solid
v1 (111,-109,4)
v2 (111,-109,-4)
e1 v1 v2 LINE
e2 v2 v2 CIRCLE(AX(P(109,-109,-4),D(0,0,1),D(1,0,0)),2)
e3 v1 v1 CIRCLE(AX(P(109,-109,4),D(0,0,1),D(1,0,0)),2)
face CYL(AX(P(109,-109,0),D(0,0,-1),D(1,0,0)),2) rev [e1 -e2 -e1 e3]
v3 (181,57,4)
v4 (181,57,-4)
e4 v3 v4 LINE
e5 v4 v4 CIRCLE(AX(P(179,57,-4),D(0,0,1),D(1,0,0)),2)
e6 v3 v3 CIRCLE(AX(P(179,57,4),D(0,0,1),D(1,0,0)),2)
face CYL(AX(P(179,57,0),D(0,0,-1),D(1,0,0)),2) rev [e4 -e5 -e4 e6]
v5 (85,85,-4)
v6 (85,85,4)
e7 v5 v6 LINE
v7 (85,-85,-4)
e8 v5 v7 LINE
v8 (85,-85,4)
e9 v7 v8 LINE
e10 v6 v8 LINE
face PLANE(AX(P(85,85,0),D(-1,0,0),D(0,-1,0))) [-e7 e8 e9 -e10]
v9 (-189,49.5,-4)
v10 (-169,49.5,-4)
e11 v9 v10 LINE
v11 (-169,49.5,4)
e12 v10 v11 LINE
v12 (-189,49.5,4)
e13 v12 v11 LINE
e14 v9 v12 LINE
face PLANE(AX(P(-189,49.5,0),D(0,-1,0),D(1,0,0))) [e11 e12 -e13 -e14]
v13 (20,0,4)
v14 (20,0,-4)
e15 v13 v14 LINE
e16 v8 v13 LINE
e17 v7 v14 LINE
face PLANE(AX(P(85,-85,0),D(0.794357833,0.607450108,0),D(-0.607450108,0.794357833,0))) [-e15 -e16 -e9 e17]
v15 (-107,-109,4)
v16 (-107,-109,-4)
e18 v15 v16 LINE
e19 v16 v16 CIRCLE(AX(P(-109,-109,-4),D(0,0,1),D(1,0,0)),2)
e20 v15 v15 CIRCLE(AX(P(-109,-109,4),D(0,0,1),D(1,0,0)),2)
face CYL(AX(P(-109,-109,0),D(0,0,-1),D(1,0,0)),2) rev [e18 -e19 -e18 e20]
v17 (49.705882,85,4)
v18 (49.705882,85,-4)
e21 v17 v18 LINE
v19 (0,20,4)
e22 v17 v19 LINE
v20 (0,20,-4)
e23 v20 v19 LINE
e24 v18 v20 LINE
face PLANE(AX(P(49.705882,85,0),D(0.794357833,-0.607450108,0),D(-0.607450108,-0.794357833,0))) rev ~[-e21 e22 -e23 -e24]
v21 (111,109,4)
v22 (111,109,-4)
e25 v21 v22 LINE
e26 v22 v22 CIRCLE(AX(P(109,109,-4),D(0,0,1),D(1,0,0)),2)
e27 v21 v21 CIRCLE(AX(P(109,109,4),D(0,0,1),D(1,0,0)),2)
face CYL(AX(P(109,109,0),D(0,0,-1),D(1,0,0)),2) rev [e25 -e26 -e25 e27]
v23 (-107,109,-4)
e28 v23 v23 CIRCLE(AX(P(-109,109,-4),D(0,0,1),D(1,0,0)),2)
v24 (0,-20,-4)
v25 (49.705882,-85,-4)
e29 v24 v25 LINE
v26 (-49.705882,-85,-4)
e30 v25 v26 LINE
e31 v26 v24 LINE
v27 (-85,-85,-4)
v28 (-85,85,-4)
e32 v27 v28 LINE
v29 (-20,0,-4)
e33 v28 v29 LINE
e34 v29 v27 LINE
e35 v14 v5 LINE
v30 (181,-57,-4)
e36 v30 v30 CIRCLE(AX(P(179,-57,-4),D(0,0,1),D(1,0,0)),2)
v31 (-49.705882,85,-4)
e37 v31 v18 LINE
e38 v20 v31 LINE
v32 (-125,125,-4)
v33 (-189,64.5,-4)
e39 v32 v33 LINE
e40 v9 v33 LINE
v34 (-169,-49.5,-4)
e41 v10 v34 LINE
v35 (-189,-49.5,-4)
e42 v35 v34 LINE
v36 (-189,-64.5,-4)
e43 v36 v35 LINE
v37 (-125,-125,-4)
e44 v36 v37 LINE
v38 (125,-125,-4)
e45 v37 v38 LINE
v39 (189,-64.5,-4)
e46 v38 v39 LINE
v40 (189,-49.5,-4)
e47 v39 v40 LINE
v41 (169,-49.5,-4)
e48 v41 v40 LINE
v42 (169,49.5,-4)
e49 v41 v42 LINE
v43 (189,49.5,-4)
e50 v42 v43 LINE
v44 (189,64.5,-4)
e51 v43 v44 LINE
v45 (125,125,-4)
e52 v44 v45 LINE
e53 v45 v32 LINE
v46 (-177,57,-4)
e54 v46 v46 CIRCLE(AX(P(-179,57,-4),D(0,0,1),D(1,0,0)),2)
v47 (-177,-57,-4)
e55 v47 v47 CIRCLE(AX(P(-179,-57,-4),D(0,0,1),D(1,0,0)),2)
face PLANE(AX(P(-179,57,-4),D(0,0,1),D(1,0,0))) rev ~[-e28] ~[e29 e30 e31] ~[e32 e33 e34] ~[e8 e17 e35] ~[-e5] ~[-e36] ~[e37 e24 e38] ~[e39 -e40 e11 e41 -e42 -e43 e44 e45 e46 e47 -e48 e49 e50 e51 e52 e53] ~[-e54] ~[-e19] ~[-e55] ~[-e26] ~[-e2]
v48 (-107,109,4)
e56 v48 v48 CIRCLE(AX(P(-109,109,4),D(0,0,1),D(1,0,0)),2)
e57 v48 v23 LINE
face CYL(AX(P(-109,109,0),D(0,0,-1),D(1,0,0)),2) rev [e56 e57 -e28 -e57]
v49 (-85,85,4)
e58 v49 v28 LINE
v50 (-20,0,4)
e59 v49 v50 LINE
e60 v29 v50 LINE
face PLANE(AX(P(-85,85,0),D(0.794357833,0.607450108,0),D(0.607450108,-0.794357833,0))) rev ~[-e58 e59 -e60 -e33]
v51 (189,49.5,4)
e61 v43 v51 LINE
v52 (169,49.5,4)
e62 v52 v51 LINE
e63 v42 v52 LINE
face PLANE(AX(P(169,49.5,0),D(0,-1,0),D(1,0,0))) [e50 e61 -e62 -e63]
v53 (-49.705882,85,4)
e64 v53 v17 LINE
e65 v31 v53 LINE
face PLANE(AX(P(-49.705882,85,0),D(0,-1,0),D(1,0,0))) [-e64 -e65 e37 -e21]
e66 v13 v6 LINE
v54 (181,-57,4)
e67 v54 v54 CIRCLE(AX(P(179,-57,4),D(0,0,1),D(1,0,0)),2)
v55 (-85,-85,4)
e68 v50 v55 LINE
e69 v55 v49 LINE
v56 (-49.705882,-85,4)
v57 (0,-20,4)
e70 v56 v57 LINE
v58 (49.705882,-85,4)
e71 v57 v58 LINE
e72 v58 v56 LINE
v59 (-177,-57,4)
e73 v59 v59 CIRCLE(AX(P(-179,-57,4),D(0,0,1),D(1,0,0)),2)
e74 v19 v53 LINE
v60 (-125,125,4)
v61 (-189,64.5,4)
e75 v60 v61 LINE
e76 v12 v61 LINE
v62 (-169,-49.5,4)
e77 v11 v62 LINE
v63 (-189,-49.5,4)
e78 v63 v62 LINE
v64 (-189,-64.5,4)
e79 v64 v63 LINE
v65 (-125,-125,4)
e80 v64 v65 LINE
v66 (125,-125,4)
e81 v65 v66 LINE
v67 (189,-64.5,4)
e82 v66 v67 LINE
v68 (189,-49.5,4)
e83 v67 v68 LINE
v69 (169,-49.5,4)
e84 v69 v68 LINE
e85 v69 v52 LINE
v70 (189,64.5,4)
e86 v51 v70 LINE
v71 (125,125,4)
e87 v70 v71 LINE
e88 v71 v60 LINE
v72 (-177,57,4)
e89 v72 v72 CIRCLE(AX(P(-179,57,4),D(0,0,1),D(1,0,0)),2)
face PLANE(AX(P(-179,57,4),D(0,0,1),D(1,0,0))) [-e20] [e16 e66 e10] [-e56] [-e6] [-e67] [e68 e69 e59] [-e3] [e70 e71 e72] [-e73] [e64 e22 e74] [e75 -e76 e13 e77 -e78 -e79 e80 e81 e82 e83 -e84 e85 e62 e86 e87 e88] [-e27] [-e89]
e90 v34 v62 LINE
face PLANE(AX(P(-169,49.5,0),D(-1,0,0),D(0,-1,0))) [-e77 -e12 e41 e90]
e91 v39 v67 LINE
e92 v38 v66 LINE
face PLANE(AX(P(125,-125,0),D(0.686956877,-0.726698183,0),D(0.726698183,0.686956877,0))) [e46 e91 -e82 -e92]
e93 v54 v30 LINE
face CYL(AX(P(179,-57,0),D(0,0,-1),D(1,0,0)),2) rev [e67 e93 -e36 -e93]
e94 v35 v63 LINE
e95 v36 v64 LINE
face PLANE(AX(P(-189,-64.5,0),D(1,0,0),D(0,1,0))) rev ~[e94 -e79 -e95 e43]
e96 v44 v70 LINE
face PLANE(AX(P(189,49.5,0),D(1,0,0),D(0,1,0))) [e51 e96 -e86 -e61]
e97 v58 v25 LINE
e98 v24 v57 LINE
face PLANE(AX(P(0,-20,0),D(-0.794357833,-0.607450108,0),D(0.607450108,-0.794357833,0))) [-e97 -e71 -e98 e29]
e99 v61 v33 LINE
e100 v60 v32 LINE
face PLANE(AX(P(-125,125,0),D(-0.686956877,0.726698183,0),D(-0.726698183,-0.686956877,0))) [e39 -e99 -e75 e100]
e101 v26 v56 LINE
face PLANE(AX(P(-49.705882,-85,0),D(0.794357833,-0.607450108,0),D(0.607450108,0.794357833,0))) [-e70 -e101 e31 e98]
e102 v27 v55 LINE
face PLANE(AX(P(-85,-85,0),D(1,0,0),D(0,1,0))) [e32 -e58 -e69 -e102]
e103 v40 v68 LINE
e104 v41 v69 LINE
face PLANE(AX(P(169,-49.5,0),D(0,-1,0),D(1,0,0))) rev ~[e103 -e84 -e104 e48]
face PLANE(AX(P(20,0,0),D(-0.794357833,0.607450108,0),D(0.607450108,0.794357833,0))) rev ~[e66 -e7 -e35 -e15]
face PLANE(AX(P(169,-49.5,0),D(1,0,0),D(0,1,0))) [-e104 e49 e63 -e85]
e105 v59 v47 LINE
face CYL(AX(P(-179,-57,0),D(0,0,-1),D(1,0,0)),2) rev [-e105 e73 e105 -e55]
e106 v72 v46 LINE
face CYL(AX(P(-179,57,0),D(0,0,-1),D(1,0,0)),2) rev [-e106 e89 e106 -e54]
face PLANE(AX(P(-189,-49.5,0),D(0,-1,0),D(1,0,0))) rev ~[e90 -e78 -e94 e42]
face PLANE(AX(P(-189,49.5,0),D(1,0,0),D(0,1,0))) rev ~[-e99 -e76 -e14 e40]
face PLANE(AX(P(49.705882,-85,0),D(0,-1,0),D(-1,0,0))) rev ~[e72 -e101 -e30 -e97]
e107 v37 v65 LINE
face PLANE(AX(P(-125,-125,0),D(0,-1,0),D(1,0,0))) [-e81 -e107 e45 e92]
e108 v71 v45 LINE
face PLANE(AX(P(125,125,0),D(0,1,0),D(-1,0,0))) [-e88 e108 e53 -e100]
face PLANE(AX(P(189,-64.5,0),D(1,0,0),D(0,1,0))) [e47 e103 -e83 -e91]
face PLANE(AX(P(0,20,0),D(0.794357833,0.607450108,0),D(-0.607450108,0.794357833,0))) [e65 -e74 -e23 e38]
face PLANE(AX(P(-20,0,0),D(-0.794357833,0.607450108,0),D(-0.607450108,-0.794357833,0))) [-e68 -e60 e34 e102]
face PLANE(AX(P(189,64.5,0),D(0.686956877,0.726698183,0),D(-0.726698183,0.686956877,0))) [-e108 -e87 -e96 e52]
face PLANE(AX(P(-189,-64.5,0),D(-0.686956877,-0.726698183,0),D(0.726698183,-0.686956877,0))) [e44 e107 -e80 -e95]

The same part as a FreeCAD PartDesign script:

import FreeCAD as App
import Part
import Sketcher

V = App.Vector
Q = App.Units.Quantity

doc = App.newDocument("Part")
body = doc.addObject("PartDesign::Body", "Body")

# Sketch on XY plane
sketch1 = body.newObject("Sketcher::SketchObject", "Sketch")
sketch1.AttachmentSupport = (doc.getObject("XY_Plane"), [""])
sketch1.MapMode = "FlatFace"
sketch1.addGeometry([
    Part.LineSegment(V(-189, 64.5, 0), V(-189, 49.5, 0)),  # 0
    Part.LineSegment(V(-189, 49.5, 0), V(-169, 49.5, 0)),  # 1
    Part.LineSegment(V(-169, 49.5, 0), V(-169, -49.5, 0)),  # 2
    Part.LineSegment(V(-169, -49.5, 0), V(-189, -49.5, 0)),  # 3
    Part.LineSegment(V(-189, -49.5, 0), V(-189, -64.5, 0)),  # 4
    Part.LineSegment(V(-189, -64.5, 0), V(-125, -125, 0)),  # 5
    Part.LineSegment(V(-125, -125, 0), V(125, -125, 0)),  # 6
    Part.LineSegment(V(125, -125, 0), V(189, -64.5, 0)),  # 7
    Part.LineSegment(V(189, -64.5, 0), V(189, -49.5, 0)),  # 8
    Part.LineSegment(V(189, -49.5, 0), V(169, -49.5, 0)),  # 9
    Part.LineSegment(V(169, -49.5, 0), V(169, 49.5, 0)),  # 10
    Part.LineSegment(V(169, 49.5, 0), V(189, 49.5, 0)),  # 11
    Part.LineSegment(V(189, 49.5, 0), V(189, 64.5, 0)),  # 12
    Part.LineSegment(V(189, 64.5, 0), V(125, 125, 0)),  # 13
    Part.LineSegment(V(125, 125, 0), V(-125, 125, 0)),  # 14
    Part.LineSegment(V(-125, 125, 0), V(-189, 64.5, 0)),  # 15
    Part.Circle(V(-109, -109, 0), V(0, 0, 1), 2),  # 16
    Part.Circle(V(-179, -57, 0), V(0, 0, 1), 2),  # 17
    Part.Circle(V(109, -109, 0), V(0, 0, 1), 2),  # 18
    Part.Circle(V(179, -57, 0), V(0, 0, 1), 2),  # 19
    Part.LineSegment(V(-49.705882, -85, 0), V(0, -20, 0)),  # 20
    Part.LineSegment(V(0, -20, 0), V(49.705882, -85, 0)),  # 21
    Part.LineSegment(V(49.705882, -85, 0), V(-49.705882, -85, 0)),  # 22
    Part.LineSegment(V(-20, 0, 0), V(-85, -85, 0)),  # 23
    Part.LineSegment(V(-85, -85, 0), V(-85, 85, 0)),  # 24
    Part.LineSegment(V(-85, 85, 0), V(-20, 0, 0)),  # 25
    Part.Circle(V(-179, 57, 0), V(0, 0, 1), 2),  # 26
    Part.Circle(V(-109, 109, 0), V(0, 0, 1), 2),  # 27
    Part.LineSegment(V(85, 85, 0), V(85, -85, 0)),  # 28
    Part.LineSegment(V(85, -85, 0), V(20, 0, 0)),  # 29
    Part.LineSegment(V(20, 0, 0), V(85, 85, 0)),  # 30
    Part.LineSegment(V(0, 20, 0), V(-49.705882, 85, 0)),  # 31
    Part.LineSegment(V(-49.705882, 85, 0), V(49.705882, 85, 0)),  # 32
    Part.LineSegment(V(49.705882, 85, 0), V(0, 20, 0)),  # 33
    Part.Circle(V(179, 57, 0), V(0, 0, 1), 2),  # 34
    Part.Circle(V(109, 109, 0), V(0, 0, 1), 2),  # 35
], False)
sketch1.addConstraint([
    Sketcher.Constraint("Coincident", 0, 2, 1, 1),
    Sketcher.Constraint("Coincident", 1, 2, 2, 1),
    Sketcher.Constraint("Coincident", 2, 2, 3, 1),
    Sketcher.Constraint("Coincident", 3, 2, 4, 1),
    Sketcher.Constraint("Coincident", 4, 2, 5, 1),
    Sketcher.Constraint("Coincident", 5, 2, 6, 1),
    Sketcher.Constraint("Coincident", 6, 2, 7, 1),
    Sketcher.Constraint("Coincident", 7, 2, 8, 1),
    Sketcher.Constraint("Coincident", 8, 2, 9, 1),
    Sketcher.Constraint("Coincident", 9, 2, 10, 1),
    Sketcher.Constraint("Coincident", 10, 2, 11, 1),
    Sketcher.Constraint("Coincident", 11, 2, 12, 1),
    Sketcher.Constraint("Coincident", 12, 2, 13, 1),
    Sketcher.Constraint("Coincident", 13, 2, 14, 1),
    Sketcher.Constraint("Coincident", 14, 2, 15, 1),
    Sketcher.Constraint("Coincident", 15, 2, 0, 1),
    Sketcher.Constraint("Coincident", 20, 2, 21, 1),
    Sketcher.Constraint("Coincident", 21, 2, 22, 1),
    Sketcher.Constraint("Coincident", 22, 2, 20, 1),
    Sketcher.Constraint("Coincident", 23, 2, 24, 1),
    Sketcher.Constraint("Coincident", 24, 2, 25, 1),
    Sketcher.Constraint("Coincident", 25, 2, 23, 1),
    Sketcher.Constraint("Coincident", 28, 2, 29, 1),
    Sketcher.Constraint("Coincident", 29, 2, 30, 1),
    Sketcher.Constraint("Coincident", 30, 2, 28, 1),
    Sketcher.Constraint("Coincident", 31, 2, 32, 1),
    Sketcher.Constraint("Coincident", 32, 2, 33, 1),
    Sketcher.Constraint("Coincident", 33, 2, 31, 1),
    Sketcher.Constraint("Vertical", 0),
    Sketcher.Constraint("Horizontal", 1),
    Sketcher.Constraint("Vertical", 2),
    Sketcher.Constraint("Horizontal", 3),
    Sketcher.Constraint("Vertical", 4),
    Sketcher.Constraint("Horizontal", 6),
    Sketcher.Constraint("Vertical", 8),
    Sketcher.Constraint("Horizontal", 9),
    Sketcher.Constraint("Vertical", 10),
    Sketcher.Constraint("Horizontal", 11),
    Sketcher.Constraint("Vertical", 12),
    Sketcher.Constraint("Horizontal", 14),
    Sketcher.Constraint("Horizontal", 22),
    Sketcher.Constraint("Vertical", 24),
    Sketcher.Constraint("Vertical", 28),
    Sketcher.Constraint("Horizontal", 32),
    Sketcher.Constraint("Equal", 16, 17),
    Sketcher.Constraint("Equal", 17, 18),
    Sketcher.Constraint("Equal", 18, 19),
    Sketcher.Constraint("Equal", 19, 26),
    Sketcher.Constraint("Equal", 26, 27),
    Sketcher.Constraint("Equal", 27, 34),
    Sketcher.Constraint("Equal", 34, 35),
    Sketcher.Constraint("Symmetric", 19, 3, 26, 3, -1, 1),
    Sketcher.Constraint("Symmetric", 18, 3, 27, 3, -1, 1),
    Sketcher.Constraint("Symmetric", 17, 3, 34, 3, -1, 1),
    Sketcher.Constraint("Symmetric", 16, 3, 35, 3, -1, 1),
    Sketcher.Constraint("Symmetric", 0, 2, 8, 2, -1, 1),
    Sketcher.Constraint("Symmetric", 2, 2, 10, 2, -1, 1),
    Sketcher.Constraint("Symmetric", 4, 2, 12, 2, -1, 1),
    Sketcher.Constraint("Symmetric", 5, 2, 13, 2, -1, 1),
    Sketcher.Constraint("Symmetric", 24, 2, 28, 2, -1, 1),
    Sketcher.Constraint("Symmetric", 25, 2, 29, 2, -1, 1),
    Sketcher.Constraint("Symmetric", 21, 2, 31, 2, -1, 1),
    Sketcher.Constraint("Symmetric", 20, 2, 33, 2, -1, 1),
    Sketcher.Constraint("Symmetric", 16, 3, 18, 3, -2),
    Sketcher.Constraint("Symmetric", 17, 3, 19, 3, -2),
    Sketcher.Constraint("Symmetric", 4, 2, 7, 2, -2),
    Sketcher.Constraint("PointOnObject", 20, 2, -2),
    Sketcher.Constraint("PointOnObject", 25, 2, -1),
    Sketcher.Constraint("Parallel", 7, 15),
    Sketcher.Constraint("Parallel", 20, 23),
    Sketcher.Constraint("Parallel", 21, 25),
    Sketcher.Constraint("Parallel", 23, 30),
    Sketcher.Constraint("Parallel", 30, 33),
    Sketcher.Constraint("Horizontal", 3, 2, 8, 2),
    Sketcher.Constraint("Horizontal", 12, 2, 15, 2),
    Sketcher.Constraint("Horizontal", 22, 2, 23, 2),
    Sketcher.Constraint("Horizontal", 23, 2, 28, 2),
    Sketcher.Constraint("Vertical", 6, 2, 13, 2),
    Sketcher.Constraint("Diameter", 16, Q("4 mm")),
    Sketcher.Constraint("DistanceX", 1, 1, 1, 2, Q("20 mm")),
    Sketcher.Constraint("DistanceX", 6, 1, 6, 2, Q("250 mm")),
    Sketcher.Constraint("DistanceY", 0, 2, 0, 1, Q("15 mm")),
    Sketcher.Constraint("DistanceY", 2, 2, 2, 1, Q("99 mm")),
    Sketcher.Constraint("DistanceY", 24, 1, 24, 2, Q("170 mm")),
    Sketcher.Constraint("DistanceX", 16, 3, -1, 1, Q("109 mm")),
    Sketcher.Constraint("DistanceY", 16, 3, -1, 1, Q("109 mm")),
    Sketcher.Constraint("DistanceX", 17, 3, -1, 1, Q("179 mm")),
    Sketcher.Constraint("DistanceY", 17, 3, -1, 1, Q("57 mm")),
    Sketcher.Constraint("DistanceX", 0, 2, -1, 1, Q("189 mm")),
    Sketcher.Constraint("DistanceY", 5, 2, -1, 1, Q("125 mm")),
    Sketcher.Constraint("DistanceY", 20, 2, -1, 1, Q("20 mm")),
    Sketcher.Constraint("DistanceX", 23, 2, -1, 1, Q("85 mm")),
    Sketcher.Constraint("DistanceX", 25, 2, -1, 1, Q("20 mm")),
])
pad1 = body.newObject("PartDesign::Pad", "Pad")
pad1.Profile = sketch1
pad1.Length = 8
pad1.Midplane = True

doc.recompute()
